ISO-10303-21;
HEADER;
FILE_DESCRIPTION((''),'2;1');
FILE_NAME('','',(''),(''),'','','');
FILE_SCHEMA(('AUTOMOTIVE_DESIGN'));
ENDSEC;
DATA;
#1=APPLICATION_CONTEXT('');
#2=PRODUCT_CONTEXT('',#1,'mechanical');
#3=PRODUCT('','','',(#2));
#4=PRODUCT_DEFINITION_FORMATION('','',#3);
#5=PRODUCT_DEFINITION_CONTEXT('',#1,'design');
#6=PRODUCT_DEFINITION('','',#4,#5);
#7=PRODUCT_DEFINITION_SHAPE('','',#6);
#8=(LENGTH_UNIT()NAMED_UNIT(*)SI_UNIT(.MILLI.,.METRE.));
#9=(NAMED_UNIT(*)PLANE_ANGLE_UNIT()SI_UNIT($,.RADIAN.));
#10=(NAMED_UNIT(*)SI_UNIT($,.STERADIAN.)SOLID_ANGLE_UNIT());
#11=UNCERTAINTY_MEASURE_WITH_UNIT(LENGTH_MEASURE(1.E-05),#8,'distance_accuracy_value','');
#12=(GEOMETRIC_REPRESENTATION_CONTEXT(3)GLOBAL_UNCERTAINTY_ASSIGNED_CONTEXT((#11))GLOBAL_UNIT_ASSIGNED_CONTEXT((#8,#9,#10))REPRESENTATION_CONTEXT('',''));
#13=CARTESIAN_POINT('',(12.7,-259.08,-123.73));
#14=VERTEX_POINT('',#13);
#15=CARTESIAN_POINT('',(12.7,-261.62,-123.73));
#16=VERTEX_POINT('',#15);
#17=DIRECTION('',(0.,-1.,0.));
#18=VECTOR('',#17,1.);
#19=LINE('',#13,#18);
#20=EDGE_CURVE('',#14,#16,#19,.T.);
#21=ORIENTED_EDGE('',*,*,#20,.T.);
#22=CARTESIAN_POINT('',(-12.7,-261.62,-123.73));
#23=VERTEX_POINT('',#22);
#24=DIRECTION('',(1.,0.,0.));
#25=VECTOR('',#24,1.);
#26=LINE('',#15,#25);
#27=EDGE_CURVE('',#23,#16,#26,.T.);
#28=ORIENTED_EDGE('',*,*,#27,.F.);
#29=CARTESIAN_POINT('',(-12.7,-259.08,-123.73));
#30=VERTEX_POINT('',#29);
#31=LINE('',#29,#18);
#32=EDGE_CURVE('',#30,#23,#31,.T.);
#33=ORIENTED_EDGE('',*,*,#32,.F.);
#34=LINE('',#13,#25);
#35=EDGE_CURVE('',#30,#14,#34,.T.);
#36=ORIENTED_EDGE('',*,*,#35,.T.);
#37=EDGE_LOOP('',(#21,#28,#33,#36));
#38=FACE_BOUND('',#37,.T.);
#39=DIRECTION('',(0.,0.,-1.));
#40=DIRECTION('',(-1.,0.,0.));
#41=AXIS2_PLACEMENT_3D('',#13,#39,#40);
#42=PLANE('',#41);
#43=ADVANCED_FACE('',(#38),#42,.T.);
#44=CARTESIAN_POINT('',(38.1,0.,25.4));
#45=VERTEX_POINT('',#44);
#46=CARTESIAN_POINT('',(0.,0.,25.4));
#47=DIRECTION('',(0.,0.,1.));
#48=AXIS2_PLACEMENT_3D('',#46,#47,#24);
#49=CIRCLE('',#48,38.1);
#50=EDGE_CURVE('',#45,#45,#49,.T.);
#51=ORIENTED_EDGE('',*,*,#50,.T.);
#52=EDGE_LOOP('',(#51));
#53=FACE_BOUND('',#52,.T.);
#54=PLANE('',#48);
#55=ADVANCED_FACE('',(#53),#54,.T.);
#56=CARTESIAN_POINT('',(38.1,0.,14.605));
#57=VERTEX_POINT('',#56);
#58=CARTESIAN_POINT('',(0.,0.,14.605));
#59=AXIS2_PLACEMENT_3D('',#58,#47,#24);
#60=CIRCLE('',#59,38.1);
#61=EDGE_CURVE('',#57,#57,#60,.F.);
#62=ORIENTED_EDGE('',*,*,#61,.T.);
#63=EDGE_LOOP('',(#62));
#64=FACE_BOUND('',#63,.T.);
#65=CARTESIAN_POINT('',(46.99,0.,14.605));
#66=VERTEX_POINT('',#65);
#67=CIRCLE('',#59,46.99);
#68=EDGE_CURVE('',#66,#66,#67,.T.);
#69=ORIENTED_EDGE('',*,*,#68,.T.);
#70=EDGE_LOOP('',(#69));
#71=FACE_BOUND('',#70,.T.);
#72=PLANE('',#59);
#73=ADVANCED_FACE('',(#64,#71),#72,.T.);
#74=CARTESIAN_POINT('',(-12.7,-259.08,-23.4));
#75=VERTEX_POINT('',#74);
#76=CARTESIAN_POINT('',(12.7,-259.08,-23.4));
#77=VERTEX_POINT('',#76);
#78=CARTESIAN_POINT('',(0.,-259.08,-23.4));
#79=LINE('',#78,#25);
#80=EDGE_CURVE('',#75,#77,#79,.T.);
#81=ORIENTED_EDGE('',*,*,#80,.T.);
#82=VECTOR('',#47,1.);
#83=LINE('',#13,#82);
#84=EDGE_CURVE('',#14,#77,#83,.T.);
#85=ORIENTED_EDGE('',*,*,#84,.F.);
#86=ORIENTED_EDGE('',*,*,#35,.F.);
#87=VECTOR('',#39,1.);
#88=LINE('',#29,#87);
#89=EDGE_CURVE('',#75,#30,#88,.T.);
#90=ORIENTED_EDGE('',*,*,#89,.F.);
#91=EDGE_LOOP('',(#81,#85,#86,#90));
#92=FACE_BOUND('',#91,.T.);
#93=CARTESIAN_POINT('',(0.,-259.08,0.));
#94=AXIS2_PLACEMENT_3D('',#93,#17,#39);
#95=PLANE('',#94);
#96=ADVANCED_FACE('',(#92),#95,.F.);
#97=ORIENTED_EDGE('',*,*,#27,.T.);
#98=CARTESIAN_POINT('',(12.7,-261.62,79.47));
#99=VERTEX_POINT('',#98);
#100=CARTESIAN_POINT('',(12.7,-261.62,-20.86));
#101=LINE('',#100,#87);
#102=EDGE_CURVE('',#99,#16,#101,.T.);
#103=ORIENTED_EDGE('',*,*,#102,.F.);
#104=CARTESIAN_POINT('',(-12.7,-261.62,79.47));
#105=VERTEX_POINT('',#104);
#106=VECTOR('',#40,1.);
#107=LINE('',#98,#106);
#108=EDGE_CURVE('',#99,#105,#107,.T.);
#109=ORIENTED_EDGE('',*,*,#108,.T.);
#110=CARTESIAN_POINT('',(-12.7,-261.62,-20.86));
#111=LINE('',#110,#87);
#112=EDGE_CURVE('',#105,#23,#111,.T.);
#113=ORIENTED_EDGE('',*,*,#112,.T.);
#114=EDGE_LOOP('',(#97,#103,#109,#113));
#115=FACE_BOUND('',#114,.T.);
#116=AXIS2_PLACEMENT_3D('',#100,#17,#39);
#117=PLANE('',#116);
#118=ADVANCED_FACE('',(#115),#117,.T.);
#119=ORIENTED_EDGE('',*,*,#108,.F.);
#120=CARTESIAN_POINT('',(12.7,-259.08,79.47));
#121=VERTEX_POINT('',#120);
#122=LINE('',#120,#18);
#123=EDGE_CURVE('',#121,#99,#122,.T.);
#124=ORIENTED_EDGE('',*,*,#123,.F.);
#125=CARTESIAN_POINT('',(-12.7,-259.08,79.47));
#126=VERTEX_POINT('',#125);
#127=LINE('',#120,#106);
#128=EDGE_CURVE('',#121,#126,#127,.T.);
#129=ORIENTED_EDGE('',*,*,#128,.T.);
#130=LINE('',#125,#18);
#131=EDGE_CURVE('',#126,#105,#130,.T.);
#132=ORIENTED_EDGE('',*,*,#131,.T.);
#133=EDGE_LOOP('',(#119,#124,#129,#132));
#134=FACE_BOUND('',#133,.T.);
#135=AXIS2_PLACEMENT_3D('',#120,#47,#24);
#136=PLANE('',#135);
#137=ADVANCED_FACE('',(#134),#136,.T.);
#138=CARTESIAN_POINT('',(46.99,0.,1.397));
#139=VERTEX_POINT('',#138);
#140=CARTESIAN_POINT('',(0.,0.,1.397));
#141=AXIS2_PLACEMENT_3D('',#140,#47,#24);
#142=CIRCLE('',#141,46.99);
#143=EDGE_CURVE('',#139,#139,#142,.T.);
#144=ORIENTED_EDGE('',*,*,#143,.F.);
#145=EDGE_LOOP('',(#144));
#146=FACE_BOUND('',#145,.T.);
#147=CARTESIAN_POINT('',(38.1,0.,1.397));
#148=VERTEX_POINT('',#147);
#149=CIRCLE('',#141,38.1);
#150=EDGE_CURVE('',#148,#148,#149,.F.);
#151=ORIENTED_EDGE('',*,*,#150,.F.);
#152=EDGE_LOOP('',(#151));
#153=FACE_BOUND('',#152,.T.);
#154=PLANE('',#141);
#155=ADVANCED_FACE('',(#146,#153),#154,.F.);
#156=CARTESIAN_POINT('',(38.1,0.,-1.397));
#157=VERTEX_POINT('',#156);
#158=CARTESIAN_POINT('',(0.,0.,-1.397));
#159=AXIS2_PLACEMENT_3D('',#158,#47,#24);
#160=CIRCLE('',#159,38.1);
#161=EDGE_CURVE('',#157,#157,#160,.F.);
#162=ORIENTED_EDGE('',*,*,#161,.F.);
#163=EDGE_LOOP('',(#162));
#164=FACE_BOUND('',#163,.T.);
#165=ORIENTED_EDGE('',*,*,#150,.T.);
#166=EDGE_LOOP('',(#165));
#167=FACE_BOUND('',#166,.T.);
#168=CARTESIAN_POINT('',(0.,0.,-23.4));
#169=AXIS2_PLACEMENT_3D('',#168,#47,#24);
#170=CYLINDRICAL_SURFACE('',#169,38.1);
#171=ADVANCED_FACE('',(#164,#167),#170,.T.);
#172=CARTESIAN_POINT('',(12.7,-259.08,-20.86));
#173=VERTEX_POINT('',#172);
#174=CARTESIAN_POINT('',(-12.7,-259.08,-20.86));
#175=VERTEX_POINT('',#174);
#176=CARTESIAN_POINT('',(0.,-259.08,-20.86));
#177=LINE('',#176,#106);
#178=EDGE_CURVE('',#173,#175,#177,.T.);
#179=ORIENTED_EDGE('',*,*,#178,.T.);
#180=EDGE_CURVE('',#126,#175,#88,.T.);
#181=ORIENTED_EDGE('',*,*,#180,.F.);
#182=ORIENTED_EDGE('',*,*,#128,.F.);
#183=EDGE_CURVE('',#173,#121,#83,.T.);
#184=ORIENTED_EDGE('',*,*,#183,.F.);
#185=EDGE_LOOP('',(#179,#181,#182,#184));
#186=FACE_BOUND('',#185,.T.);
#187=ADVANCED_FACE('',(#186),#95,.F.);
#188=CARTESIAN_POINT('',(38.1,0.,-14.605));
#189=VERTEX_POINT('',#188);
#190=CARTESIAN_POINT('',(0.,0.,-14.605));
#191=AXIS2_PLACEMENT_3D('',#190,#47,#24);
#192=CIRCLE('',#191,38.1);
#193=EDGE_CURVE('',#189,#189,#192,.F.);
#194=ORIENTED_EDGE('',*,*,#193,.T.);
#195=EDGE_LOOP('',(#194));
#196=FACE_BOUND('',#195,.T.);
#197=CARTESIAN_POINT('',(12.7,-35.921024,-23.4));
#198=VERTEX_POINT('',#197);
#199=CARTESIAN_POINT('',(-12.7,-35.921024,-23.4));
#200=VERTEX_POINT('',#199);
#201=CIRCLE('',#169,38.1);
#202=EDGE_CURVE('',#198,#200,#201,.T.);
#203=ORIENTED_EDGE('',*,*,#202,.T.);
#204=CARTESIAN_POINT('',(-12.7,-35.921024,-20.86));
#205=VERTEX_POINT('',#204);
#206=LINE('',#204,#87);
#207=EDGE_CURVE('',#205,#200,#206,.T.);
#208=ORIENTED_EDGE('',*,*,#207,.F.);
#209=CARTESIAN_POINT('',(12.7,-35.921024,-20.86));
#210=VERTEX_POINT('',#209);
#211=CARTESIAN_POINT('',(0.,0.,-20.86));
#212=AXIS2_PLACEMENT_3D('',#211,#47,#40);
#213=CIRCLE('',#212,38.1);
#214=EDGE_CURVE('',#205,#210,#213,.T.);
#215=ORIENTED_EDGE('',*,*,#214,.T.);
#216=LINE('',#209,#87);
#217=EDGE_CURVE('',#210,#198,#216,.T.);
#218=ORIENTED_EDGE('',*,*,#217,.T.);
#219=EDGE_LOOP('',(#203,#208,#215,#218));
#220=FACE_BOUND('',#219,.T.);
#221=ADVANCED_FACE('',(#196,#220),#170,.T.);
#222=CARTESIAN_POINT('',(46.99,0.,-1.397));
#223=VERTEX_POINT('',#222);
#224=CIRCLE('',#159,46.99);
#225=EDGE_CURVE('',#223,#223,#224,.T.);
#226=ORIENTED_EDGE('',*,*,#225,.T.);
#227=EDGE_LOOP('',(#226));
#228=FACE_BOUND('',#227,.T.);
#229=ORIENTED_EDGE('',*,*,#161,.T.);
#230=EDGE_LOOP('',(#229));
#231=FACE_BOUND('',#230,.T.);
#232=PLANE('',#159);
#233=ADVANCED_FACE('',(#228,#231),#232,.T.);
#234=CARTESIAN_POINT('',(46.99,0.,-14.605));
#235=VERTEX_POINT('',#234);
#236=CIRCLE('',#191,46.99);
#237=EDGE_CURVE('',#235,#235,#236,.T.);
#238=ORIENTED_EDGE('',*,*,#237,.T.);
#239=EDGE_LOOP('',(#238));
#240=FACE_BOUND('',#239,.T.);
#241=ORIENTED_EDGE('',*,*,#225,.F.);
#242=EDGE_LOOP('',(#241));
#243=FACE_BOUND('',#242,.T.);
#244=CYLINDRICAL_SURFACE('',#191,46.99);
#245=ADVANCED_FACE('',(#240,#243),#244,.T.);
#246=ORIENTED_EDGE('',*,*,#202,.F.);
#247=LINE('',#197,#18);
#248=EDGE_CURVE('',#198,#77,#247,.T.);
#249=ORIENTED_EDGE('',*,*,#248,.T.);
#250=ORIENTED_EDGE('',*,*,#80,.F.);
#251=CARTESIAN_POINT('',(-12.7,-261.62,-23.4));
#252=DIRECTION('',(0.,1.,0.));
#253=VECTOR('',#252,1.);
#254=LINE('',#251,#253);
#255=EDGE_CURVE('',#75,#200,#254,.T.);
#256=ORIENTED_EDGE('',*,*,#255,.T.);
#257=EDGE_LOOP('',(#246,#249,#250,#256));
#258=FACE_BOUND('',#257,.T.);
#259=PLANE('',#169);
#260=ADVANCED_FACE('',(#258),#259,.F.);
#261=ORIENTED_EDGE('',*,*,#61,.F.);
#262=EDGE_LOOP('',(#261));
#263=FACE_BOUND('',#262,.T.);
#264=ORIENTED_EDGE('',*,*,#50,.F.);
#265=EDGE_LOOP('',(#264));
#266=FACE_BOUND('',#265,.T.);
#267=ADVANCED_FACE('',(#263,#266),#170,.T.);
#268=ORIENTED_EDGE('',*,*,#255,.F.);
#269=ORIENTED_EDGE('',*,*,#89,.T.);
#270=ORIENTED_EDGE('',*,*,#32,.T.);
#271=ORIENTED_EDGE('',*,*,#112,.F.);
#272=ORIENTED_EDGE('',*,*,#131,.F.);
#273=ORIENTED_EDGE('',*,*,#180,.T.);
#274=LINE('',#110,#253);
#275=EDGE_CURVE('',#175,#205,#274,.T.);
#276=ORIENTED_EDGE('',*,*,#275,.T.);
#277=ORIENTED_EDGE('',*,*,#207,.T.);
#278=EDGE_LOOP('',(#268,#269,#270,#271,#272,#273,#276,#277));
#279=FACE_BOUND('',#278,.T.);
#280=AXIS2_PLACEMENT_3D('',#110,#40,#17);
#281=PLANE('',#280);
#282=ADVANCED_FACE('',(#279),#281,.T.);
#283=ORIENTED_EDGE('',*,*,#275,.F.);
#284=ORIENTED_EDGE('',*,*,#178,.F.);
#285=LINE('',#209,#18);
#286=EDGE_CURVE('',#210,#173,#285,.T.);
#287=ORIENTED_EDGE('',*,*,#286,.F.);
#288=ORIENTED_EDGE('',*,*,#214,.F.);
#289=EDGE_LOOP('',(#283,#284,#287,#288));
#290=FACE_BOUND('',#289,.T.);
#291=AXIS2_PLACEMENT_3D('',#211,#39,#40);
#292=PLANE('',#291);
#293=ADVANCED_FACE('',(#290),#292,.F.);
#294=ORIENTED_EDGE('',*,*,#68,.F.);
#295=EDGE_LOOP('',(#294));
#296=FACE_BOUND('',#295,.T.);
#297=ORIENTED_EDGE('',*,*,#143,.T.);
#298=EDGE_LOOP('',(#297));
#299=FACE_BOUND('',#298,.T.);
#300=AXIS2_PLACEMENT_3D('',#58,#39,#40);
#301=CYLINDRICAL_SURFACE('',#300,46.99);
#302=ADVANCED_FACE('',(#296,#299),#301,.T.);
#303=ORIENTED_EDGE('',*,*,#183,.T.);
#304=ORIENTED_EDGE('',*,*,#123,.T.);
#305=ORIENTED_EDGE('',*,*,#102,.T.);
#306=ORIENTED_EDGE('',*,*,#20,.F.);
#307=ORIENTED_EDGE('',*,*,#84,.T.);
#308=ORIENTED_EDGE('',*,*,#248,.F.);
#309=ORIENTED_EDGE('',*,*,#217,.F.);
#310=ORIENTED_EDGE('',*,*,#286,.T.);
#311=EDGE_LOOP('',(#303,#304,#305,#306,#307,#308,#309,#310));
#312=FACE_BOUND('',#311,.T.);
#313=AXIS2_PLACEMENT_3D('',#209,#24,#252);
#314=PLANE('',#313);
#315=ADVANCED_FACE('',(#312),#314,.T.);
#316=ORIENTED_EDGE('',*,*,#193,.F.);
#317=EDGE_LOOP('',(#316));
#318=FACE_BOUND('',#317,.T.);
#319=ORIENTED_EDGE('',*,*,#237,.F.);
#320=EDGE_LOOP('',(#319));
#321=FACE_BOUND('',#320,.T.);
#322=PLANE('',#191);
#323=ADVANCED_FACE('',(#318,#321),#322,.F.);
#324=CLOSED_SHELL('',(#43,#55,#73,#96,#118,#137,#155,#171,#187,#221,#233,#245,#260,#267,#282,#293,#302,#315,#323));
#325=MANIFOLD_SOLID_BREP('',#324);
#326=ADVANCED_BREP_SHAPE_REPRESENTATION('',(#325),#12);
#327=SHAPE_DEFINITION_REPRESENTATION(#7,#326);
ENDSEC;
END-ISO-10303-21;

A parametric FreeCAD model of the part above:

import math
import FreeCAD as App
import Part
import Sketcher

V = App.Vector
Q = App.Units.Quantity

doc = App.newDocument("Part")
body = doc.addObject("PartDesign::Body", "Body")

# Sketch on XY plane
sketch1 = doc.addObject("Sketcher::SketchObject", "Sketch")
body.addObject(sketch1)
sketch1.AttachmentSupport = (doc.XY_Plane, [""])
sketch1.MapMode = "FlatFace"
sketch1.addGeometry(Part.Circle(V(0, 0, 0), V(0, 0, 1), 38), False)
sketch1.addConstraint(Sketcher.Constraint("Coincident", 0, 3, -1, 1))
sketch1.addConstraint(Sketcher.Constraint("Diameter", 0, Q("3 in")))
pad1 = doc.addObject("PartDesign::Pad", "Pad")
body.addObject(pad1)
pad1.Profile = sketch1
pad1.Type = "TwoLengths"
pad1.Length = Q("1 in")
pad1.Length2 = 23.4

# Sketch on XY plane
sketch2 = doc.addObject("Sketcher::SketchObject", "Sketch001")
body.addObject(sketch2)
sketch2.AttachmentSupport = (doc.XY_Plane, [""])
sketch2.MapMode = "FlatFace"
sketch2.AttachmentOffset = App.Placement(V(0, 0, 0.055 * 25.4), App.Rotation())
sketch2.addGeometry(Part.Circle(V(0, 0, 0), V(0, 0, 1), 47), False)
sketch2.addConstraint(Sketcher.Constraint("Coincident", 0, 3, -1, 1))
sketch2.addConstraint(Sketcher.Constraint("Diameter", 0, Q("3.7 in")))
pad2 = doc.addObject("PartDesign::Pad", "Pad001")
body.addObject(pad2)
pad2.Profile = sketch2
pad2.Length = Q("0.52 in")

# Sketch on XY plane
sketch3 = doc.addObject("Sketcher::SketchObject", "Sketch002")
body.addObject(sketch3)
sketch3.AttachmentSupport = (doc.XY_Plane, [""])
sketch3.MapMode = "FlatFace"
sketch3.AttachmentOffset = App.Placement(V(0, 0, -0.055 * 25.4), App.Rotation())
sketch3.addGeometry(Part.Circle(V(0, 0, 0), V(0, 0, 1), 47), False)
sketch3.addConstraint(Sketcher.Constraint("Coincident", 0, 3, -1, 1))
sketch3.addConstraint(Sketcher.Constraint("Diameter", 0, Q("3.7 in")))
pad3 = doc.addObject("PartDesign::Pad", "Pad002")
body.addObject(pad3)
pad3.Profile = sketch3
pad3.Length = Q("0.52 in")
pad3.Reversed = True

# Sketch on XY plane
sketch4 = doc.addObject("Sketcher::SketchObject", "Sketch003")
body.addObject(sketch4)
sketch4.AttachmentSupport = (doc.XY_Plane, [""])
sketch4.MapMode = "FlatFace"
sketch4.AttachmentOffset = App.Placement(V(0, 0, -23.4), App.Rotation())
sketch4.addGeometry(Part.LineSegment(V(13, -36, 0), V(13, -262, 0)), False)
sketch4.addGeometry(Part.LineSegment(V(13, -262, 0), V(-13, -262, 0)), False)
sketch4.addGeometry(Part.LineSegment(V(-13, -262, 0), V(-13, -36, 0)), False)
sketch4.addGeometry(Part.ArcOfCircle(Part.Circle(V(0, 0, 0), V(0, 0, 1), 38), math.radians(-109), math.radians(-71)), False)
sketch4.addConstraint(Sketcher.Constraint("Coincident", 0, 2, 1, 1))
sketch4.addConstraint(Sketcher.Constraint("Coincident", 1, 2, 2, 1))
sketch4.addConstraint(Sketcher.Constraint("Coincident", 2, 2, 3, 1))
sketch4.addConstraint(Sketcher.Constraint("Coincident", 3, 2, 0, 1))
sketch4.addConstraint(Sketcher.Constraint("Vertical", 0))
sketch4.addConstraint(Sketcher.Constraint("Horizontal", 1))
sketch4.addConstraint(Sketcher.Constraint("Vertical", 2))
sketch4.addConstraint(Sketcher.Constraint("Coincident", 3, 3, -1, 1))
sketch4.addConstraint(Sketcher.Constraint("Horizontal", 2, 2, 3, 2))
sketch4.addConstraint(Sketcher.Constraint("Radius", 3, Q("1.5 in")))
sketch4.addConstraint(Sketcher.Constraint("DistanceX", 1, 2, 1, 1, Q("1 in")))
sketch4.addConstraint(Sketcher.Constraint("DistanceY", 0, 2, -1, 1, Q("10.3 in")))
pad4 = doc.addObject("PartDesign::Pad", "Pad003")
body.addObject(pad4)
pad4.Profile = sketch4
pad4.Length = Q("0.1 in")

# Sketch on XZ plane
sketch5 = doc.addObject("Sketcher::SketchObject", "Sketch004")
body.addObject(sketch5)
sketch5.AttachmentSupport = (doc.XZ_Plane, [""])
sketch5.MapMode = "FlatFace"
sketch5.AttachmentOffset = App.Placement(V(0, 0, 10.3 * 25.4), App.Rotation())
sketch5.addGeometry(Part.LineSegment(V(-13, 79, 0), V(-13, -124, 0)), False)
sketch5.addGeometry(Part.LineSegment(V(-13, -124, 0), V(13, -124, 0)), False)
sketch5.addGeometry(Part.LineSegment(V(13, -124, 0), V(13, 79, 0)), False)
sketch5.addGeometry(Part.LineSegment(V(13, 79, 0), V(-13, 79, 0)), False)
sketch5.addConstraint(Sketcher.Constraint("Coincident", 0, 2, 1, 1))
sketch5.addConstraint(Sketcher.Constraint("Coincident", 1, 2, 2, 1))
sketch5.addConstraint(Sketcher.Constraint("Coincident", 2, 2, 3, 1))
sketch5.addConstraint(Sketcher.Constraint("Coincident", 3, 2, 0, 1))
sketch5.addConstraint(Sketcher.Constraint("Vertical", 0))
sketch5.addConstraint(Sketcher.Constraint("Horizontal", 1))
sketch5.addConstraint(Sketcher.Constraint("Vertical", 2))
sketch5.addConstraint(Sketcher.Constraint("Horizontal", 3))
sketch5.addConstraint(Sketcher.Constraint("DistanceX", 1, 1, 1, 2, Q("1 in")))
sketch5.addConstraint(Sketcher.Constraint("DistanceY", 0, 2, 0, 1, Q("8 in")))
sketch5.addConstraint(Sketcher.Constraint("DistanceX", 0, 2, -1, 1, Q("0.5 in")))
sketch5.addConstraint(Sketcher.Constraint("DistanceY", 0, 2, -1, 1, Q("123.73 mm")))
pad5 = doc.addObject("PartDesign::Pad", "Pad004")
body.addObject(pad5)
pad5.Profile = sketch5
pad5.Length = Q("0.1 in")
pad5.Reversed = True

doc.recompute()
